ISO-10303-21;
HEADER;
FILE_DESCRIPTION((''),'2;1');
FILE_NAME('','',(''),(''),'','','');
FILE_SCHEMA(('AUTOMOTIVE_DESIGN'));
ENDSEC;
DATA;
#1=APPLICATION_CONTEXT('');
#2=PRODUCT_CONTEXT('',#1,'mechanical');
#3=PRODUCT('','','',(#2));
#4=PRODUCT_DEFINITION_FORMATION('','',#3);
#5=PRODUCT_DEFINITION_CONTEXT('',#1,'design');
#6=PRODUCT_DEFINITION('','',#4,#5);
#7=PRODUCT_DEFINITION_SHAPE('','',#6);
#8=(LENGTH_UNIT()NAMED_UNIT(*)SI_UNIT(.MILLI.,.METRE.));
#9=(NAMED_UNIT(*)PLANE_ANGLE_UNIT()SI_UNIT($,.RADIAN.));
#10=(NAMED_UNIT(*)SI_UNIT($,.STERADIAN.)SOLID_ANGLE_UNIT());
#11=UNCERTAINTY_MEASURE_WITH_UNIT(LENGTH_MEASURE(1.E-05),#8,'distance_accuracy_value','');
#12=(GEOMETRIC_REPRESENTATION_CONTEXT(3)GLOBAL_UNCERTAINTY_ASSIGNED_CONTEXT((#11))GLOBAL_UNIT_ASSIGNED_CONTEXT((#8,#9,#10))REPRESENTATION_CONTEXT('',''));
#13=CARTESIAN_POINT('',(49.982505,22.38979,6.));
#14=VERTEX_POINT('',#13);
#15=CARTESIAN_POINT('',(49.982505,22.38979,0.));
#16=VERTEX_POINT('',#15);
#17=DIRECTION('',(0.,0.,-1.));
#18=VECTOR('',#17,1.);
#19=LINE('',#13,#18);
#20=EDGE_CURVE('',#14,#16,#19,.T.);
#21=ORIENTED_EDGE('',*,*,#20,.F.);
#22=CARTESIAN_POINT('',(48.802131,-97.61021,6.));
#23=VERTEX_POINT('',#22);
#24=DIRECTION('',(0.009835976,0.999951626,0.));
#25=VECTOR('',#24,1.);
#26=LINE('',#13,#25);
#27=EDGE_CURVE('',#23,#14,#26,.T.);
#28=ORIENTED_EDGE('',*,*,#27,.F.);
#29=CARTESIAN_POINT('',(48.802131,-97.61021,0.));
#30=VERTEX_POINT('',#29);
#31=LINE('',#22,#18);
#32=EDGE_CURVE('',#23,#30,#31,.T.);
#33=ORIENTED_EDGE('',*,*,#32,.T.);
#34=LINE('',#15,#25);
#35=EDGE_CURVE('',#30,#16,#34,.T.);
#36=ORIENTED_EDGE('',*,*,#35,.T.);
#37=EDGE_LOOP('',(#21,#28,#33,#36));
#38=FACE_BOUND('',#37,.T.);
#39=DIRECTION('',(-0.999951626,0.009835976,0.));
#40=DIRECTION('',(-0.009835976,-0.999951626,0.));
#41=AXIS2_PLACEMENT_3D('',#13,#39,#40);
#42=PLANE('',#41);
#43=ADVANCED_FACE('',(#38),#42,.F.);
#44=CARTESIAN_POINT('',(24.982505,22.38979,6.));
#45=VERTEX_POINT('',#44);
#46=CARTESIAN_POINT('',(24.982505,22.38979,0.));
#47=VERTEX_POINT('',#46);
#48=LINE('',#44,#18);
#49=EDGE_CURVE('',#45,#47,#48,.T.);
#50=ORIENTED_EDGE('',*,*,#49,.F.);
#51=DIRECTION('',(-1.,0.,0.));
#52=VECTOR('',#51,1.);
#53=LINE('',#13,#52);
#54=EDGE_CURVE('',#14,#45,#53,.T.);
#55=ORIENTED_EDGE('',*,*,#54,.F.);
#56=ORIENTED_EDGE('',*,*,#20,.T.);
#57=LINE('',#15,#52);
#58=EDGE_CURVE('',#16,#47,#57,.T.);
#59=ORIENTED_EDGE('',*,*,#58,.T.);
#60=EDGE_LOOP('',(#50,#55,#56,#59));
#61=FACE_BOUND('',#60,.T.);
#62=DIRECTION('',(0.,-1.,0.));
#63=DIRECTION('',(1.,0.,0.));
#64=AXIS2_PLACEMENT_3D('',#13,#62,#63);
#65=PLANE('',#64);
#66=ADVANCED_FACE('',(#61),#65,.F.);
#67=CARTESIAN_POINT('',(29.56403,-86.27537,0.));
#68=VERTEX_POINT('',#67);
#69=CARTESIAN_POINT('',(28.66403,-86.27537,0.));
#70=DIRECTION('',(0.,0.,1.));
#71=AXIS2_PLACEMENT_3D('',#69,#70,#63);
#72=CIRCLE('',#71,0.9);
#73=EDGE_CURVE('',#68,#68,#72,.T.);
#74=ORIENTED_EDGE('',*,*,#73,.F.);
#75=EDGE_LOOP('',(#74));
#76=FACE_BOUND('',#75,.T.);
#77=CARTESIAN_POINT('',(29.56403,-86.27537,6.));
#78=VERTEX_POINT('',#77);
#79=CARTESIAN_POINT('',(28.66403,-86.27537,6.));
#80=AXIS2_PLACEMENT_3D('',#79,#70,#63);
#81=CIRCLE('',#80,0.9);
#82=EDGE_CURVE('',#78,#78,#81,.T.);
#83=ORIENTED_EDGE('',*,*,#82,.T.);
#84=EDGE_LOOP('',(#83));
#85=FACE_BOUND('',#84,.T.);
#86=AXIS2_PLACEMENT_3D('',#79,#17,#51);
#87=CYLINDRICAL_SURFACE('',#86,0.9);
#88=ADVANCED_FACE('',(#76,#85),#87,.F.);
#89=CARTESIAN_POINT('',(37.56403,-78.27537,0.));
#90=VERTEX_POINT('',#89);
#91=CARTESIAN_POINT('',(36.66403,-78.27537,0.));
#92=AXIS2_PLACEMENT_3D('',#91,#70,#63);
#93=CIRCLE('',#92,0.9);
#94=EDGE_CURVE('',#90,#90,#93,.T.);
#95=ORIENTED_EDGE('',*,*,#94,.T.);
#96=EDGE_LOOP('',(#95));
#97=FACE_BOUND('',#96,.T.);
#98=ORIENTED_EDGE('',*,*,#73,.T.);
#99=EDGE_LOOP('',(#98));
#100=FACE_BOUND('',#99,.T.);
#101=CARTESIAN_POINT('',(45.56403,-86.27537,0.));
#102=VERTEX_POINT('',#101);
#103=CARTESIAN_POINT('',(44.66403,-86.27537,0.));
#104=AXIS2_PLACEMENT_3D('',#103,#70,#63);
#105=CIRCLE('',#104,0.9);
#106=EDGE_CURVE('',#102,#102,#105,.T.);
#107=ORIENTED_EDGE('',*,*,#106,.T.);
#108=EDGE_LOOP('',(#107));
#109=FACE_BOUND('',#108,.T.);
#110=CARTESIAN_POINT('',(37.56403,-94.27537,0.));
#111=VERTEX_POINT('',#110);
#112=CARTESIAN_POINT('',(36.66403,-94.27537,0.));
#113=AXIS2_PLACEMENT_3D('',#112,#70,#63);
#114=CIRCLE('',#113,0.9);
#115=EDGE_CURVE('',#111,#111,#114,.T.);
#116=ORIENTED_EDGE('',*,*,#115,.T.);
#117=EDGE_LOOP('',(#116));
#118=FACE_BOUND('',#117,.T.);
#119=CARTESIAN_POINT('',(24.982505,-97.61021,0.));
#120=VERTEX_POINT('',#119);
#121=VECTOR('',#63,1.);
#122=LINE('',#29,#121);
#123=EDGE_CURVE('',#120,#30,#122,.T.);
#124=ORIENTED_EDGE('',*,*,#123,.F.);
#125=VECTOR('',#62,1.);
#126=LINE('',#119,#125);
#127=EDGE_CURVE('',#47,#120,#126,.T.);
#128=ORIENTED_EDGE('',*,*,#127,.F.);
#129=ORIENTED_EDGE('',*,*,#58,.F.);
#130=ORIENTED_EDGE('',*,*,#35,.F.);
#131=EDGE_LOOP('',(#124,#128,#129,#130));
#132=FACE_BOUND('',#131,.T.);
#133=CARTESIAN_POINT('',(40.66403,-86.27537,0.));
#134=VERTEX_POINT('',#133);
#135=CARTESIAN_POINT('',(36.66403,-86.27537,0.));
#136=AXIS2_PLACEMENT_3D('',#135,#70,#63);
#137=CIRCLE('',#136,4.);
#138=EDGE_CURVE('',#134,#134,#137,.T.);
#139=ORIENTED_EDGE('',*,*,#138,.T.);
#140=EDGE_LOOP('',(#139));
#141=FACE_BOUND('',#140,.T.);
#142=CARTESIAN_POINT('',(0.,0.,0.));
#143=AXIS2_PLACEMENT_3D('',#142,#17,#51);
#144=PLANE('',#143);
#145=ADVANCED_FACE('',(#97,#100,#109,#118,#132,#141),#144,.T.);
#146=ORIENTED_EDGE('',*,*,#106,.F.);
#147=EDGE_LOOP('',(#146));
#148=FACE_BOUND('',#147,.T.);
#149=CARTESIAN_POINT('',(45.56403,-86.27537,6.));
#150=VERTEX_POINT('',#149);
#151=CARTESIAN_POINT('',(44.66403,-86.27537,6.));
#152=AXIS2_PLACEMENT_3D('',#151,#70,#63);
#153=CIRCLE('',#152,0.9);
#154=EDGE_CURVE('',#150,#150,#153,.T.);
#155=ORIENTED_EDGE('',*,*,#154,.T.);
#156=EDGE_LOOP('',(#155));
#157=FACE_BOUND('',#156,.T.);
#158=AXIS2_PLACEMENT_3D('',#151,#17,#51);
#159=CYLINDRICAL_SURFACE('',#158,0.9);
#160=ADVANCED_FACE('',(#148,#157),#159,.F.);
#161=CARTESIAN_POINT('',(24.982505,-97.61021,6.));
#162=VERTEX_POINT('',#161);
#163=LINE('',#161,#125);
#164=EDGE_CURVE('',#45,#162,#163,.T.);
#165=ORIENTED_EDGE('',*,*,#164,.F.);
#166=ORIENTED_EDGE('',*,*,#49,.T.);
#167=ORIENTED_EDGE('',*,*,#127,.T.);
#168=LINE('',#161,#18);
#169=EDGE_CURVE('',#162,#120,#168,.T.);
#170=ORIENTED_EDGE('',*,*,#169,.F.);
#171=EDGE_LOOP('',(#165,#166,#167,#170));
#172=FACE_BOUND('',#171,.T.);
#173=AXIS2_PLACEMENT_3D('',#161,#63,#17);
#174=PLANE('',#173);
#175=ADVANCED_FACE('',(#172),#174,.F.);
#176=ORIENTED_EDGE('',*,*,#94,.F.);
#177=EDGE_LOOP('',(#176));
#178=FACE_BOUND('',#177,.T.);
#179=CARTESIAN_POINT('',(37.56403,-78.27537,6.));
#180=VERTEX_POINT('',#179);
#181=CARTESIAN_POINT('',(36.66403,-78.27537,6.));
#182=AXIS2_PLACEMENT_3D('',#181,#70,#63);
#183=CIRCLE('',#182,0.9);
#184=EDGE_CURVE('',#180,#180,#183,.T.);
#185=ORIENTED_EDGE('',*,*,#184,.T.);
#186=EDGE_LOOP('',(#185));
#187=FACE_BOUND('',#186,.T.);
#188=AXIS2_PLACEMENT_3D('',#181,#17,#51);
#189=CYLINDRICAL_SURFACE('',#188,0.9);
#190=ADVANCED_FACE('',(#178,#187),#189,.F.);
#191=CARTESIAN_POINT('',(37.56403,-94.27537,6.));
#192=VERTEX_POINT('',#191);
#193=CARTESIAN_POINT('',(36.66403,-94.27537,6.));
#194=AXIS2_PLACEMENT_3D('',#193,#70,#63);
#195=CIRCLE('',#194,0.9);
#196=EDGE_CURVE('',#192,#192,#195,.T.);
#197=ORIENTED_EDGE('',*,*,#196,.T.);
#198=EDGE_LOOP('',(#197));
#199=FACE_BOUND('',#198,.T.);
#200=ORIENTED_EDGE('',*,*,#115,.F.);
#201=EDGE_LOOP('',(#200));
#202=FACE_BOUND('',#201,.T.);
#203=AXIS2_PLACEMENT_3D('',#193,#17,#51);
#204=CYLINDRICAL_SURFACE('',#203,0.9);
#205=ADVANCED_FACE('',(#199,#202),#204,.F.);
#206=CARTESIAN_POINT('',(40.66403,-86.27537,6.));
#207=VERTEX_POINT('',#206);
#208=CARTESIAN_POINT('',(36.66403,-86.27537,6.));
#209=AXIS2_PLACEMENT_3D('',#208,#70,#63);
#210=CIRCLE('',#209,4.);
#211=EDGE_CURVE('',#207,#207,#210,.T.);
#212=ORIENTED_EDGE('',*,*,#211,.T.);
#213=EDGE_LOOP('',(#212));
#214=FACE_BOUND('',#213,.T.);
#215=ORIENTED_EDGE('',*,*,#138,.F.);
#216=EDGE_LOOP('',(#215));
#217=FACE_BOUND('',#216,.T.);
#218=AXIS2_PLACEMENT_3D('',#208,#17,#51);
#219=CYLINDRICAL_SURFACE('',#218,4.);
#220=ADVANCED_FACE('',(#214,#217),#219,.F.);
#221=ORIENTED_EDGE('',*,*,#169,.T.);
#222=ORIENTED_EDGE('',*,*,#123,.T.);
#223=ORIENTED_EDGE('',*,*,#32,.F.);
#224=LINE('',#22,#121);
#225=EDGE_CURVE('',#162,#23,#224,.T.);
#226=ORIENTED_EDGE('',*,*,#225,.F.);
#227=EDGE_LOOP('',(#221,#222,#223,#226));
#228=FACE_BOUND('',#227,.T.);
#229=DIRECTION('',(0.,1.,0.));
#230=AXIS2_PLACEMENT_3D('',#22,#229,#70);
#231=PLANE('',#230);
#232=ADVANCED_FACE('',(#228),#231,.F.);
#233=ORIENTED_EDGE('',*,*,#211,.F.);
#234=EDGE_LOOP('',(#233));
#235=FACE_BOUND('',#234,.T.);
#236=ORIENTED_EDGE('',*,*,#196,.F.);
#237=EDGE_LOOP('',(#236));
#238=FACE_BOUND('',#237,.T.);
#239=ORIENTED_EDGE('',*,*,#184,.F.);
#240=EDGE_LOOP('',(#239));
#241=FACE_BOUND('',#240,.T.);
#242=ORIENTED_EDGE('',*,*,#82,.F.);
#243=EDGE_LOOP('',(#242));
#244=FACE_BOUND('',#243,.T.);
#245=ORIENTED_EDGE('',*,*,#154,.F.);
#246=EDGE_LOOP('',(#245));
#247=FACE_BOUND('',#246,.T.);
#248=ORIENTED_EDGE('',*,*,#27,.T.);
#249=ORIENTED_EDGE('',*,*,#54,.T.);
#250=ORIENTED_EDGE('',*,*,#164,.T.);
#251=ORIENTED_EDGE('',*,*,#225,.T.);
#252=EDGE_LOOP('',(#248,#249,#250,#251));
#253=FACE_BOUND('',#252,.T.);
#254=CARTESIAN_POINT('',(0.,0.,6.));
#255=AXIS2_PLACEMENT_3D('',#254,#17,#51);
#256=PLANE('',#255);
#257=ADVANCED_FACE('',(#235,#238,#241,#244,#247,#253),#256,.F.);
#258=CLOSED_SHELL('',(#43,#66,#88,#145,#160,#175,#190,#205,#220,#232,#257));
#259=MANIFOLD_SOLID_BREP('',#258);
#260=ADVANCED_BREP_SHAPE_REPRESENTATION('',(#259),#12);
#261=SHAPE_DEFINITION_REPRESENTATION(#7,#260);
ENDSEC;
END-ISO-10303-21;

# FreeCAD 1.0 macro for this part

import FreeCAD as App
import Part
import Sketcher
Q = App.Units.Quantity

doc = App.newDocument("Part")
body = doc.addObject("PartDesign::Body", "Body")

# Sketch on XY plane
sketch1 = doc.addObject("Sketcher::SketchObject", "Sketch")
body.addObject(sketch1)
sketch1.AttachmentSupport = (doc.XY_Plane, [""])
sketch1.MapMode = "FlatFace"
sketch1.addGeometry(Part.LineSegment(App.Vector(25, 22.4, 0), App.Vector(25, -97.6, 0)), False)
sketch1.addGeometry(Part.LineSegment(App.Vector(25, -97.6, 0), App.Vector(48.8, -97.6, 0)), False)
sketch1.addGeometry(Part.LineSegment(App.Vector(48.8, -97.6, 0), App.Vector(50, 22.4, 0)), False)
sketch1.addGeometry(Part.LineSegment(App.Vector(50, 22.4, 0), App.Vector(25, 22.4, 0)), False)
sketch1.addGeometry(Part.Circle(App.Vector(36.7, -94.3, 0), App.Vector(0, 0, 1), 0.9), False)
sketch1.addGeometry(Part.Circle(App.Vector(44.7, -86.3, 0), App.Vector(0, 0, 1), 0.9), False)
sketch1.addGeometry(Part.Circle(App.Vector(36.7, -86.3, 0), App.Vector(0, 0, 1), 4), False)
sketch1.addGeometry(Part.Circle(App.Vector(28.7, -86.3, 0), App.Vector(0, 0, 1), 0.9), False)
sketch1.addGeometry(Part.Circle(App.Vector(36.7, -78.3, 0), App.Vector(0, 0, 1), 0.9), False)
sketch1.addConstraint(Sketcher.Constraint("Coincident", 0, 2, 1, 1))
sketch1.addConstraint(Sketcher.Constraint("Coincident", 1, 2, 2, 1))
sketch1.addConstraint(Sketcher.Constraint("Coincident", 2, 2, 3, 1))
sketch1.addConstraint(Sketcher.Constraint("Coincident", 3, 2, 0, 1))
sketch1.addConstraint(Sketcher.Constraint("Vertical", 0))
sketch1.addConstraint(Sketcher.Constraint("Horizontal", 1))
sketch1.addConstraint(Sketcher.Constraint("Horizontal", 3))
sketch1.addConstraint(Sketcher.Constraint("Equal", 4, 5))
sketch1.addConstraint(Sketcher.Constraint("Equal", 5, 7))
sketch1.addConstraint(Sketcher.Constraint("Equal", 7, 8))
sketch1.addConstraint(Sketcher.Constraint("Horizontal", 5, 3, 6, 3))
sketch1.addConstraint(Sketcher.Constraint("Horizontal", 6, 3, 7, 3))
sketch1.addConstraint(Sketcher.Constraint("Vertical", 4, 3, 6, 3))
sketch1.addConstraint(Sketcher.Constraint("Vertical", 6, 3, 8, 3))
sketch1.addConstraint(Sketcher.Constraint("Diameter", 6, Q("8 mm")))
sketch1.addConstraint(Sketcher.Constraint("Diameter", 4, Q("1.8 mm")))
sketch1.addConstraint(Sketcher.Constraint("DistanceX", 3, 2, 3, 1, Q("25 mm")))
sketch1.addConstraint(Sketcher.Constraint("DistanceY", 0, 2, 0, 1, Q("120 mm")))
sketch1.addConstraint(Sketcher.Constraint("DistanceX", 4, 3, 5, 3, Q("8 mm")))
sketch1.addConstraint(Sketcher.Constraint("DistanceY", 4, 3, 5, 3, Q("8 mm")))
sketch1.addConstraint(Sketcher.Constraint("DistanceX", 7, 3, 6, 3, Q("8 mm")))
sketch1.addConstraint(Sketcher.Constraint("DistanceY", 6, 3, 8, 3, Q("8 mm")))
sketch1.addConstraint(Sketcher.Constraint("DistanceX", 5, 3, 1, 2, Q("4.138101 mm")))
sketch1.addConstraint(Sketcher.Constraint("DistanceX", 1, 1, 1, 2, Q("23.819626 mm")))
sketch1.addConstraint(Sketcher.Constraint("DistanceX", -1, 1, 4, 3, Q("36.66403 mm")))
sketch1.addConstraint(Sketcher.Constraint("DistanceY", 4, 3, -1, 1, Q("94.27537 mm")))
sketch1.addConstraint(Sketcher.Constraint("DistanceY", 0, 2, -1, 1, Q("97.61021 mm")))
pad1 = doc.addObject("PartDesign::Pad", "Pad")
body.addObject(pad1)
pad1.Profile = sketch1
pad1.Length = 6

doc.recompute()
